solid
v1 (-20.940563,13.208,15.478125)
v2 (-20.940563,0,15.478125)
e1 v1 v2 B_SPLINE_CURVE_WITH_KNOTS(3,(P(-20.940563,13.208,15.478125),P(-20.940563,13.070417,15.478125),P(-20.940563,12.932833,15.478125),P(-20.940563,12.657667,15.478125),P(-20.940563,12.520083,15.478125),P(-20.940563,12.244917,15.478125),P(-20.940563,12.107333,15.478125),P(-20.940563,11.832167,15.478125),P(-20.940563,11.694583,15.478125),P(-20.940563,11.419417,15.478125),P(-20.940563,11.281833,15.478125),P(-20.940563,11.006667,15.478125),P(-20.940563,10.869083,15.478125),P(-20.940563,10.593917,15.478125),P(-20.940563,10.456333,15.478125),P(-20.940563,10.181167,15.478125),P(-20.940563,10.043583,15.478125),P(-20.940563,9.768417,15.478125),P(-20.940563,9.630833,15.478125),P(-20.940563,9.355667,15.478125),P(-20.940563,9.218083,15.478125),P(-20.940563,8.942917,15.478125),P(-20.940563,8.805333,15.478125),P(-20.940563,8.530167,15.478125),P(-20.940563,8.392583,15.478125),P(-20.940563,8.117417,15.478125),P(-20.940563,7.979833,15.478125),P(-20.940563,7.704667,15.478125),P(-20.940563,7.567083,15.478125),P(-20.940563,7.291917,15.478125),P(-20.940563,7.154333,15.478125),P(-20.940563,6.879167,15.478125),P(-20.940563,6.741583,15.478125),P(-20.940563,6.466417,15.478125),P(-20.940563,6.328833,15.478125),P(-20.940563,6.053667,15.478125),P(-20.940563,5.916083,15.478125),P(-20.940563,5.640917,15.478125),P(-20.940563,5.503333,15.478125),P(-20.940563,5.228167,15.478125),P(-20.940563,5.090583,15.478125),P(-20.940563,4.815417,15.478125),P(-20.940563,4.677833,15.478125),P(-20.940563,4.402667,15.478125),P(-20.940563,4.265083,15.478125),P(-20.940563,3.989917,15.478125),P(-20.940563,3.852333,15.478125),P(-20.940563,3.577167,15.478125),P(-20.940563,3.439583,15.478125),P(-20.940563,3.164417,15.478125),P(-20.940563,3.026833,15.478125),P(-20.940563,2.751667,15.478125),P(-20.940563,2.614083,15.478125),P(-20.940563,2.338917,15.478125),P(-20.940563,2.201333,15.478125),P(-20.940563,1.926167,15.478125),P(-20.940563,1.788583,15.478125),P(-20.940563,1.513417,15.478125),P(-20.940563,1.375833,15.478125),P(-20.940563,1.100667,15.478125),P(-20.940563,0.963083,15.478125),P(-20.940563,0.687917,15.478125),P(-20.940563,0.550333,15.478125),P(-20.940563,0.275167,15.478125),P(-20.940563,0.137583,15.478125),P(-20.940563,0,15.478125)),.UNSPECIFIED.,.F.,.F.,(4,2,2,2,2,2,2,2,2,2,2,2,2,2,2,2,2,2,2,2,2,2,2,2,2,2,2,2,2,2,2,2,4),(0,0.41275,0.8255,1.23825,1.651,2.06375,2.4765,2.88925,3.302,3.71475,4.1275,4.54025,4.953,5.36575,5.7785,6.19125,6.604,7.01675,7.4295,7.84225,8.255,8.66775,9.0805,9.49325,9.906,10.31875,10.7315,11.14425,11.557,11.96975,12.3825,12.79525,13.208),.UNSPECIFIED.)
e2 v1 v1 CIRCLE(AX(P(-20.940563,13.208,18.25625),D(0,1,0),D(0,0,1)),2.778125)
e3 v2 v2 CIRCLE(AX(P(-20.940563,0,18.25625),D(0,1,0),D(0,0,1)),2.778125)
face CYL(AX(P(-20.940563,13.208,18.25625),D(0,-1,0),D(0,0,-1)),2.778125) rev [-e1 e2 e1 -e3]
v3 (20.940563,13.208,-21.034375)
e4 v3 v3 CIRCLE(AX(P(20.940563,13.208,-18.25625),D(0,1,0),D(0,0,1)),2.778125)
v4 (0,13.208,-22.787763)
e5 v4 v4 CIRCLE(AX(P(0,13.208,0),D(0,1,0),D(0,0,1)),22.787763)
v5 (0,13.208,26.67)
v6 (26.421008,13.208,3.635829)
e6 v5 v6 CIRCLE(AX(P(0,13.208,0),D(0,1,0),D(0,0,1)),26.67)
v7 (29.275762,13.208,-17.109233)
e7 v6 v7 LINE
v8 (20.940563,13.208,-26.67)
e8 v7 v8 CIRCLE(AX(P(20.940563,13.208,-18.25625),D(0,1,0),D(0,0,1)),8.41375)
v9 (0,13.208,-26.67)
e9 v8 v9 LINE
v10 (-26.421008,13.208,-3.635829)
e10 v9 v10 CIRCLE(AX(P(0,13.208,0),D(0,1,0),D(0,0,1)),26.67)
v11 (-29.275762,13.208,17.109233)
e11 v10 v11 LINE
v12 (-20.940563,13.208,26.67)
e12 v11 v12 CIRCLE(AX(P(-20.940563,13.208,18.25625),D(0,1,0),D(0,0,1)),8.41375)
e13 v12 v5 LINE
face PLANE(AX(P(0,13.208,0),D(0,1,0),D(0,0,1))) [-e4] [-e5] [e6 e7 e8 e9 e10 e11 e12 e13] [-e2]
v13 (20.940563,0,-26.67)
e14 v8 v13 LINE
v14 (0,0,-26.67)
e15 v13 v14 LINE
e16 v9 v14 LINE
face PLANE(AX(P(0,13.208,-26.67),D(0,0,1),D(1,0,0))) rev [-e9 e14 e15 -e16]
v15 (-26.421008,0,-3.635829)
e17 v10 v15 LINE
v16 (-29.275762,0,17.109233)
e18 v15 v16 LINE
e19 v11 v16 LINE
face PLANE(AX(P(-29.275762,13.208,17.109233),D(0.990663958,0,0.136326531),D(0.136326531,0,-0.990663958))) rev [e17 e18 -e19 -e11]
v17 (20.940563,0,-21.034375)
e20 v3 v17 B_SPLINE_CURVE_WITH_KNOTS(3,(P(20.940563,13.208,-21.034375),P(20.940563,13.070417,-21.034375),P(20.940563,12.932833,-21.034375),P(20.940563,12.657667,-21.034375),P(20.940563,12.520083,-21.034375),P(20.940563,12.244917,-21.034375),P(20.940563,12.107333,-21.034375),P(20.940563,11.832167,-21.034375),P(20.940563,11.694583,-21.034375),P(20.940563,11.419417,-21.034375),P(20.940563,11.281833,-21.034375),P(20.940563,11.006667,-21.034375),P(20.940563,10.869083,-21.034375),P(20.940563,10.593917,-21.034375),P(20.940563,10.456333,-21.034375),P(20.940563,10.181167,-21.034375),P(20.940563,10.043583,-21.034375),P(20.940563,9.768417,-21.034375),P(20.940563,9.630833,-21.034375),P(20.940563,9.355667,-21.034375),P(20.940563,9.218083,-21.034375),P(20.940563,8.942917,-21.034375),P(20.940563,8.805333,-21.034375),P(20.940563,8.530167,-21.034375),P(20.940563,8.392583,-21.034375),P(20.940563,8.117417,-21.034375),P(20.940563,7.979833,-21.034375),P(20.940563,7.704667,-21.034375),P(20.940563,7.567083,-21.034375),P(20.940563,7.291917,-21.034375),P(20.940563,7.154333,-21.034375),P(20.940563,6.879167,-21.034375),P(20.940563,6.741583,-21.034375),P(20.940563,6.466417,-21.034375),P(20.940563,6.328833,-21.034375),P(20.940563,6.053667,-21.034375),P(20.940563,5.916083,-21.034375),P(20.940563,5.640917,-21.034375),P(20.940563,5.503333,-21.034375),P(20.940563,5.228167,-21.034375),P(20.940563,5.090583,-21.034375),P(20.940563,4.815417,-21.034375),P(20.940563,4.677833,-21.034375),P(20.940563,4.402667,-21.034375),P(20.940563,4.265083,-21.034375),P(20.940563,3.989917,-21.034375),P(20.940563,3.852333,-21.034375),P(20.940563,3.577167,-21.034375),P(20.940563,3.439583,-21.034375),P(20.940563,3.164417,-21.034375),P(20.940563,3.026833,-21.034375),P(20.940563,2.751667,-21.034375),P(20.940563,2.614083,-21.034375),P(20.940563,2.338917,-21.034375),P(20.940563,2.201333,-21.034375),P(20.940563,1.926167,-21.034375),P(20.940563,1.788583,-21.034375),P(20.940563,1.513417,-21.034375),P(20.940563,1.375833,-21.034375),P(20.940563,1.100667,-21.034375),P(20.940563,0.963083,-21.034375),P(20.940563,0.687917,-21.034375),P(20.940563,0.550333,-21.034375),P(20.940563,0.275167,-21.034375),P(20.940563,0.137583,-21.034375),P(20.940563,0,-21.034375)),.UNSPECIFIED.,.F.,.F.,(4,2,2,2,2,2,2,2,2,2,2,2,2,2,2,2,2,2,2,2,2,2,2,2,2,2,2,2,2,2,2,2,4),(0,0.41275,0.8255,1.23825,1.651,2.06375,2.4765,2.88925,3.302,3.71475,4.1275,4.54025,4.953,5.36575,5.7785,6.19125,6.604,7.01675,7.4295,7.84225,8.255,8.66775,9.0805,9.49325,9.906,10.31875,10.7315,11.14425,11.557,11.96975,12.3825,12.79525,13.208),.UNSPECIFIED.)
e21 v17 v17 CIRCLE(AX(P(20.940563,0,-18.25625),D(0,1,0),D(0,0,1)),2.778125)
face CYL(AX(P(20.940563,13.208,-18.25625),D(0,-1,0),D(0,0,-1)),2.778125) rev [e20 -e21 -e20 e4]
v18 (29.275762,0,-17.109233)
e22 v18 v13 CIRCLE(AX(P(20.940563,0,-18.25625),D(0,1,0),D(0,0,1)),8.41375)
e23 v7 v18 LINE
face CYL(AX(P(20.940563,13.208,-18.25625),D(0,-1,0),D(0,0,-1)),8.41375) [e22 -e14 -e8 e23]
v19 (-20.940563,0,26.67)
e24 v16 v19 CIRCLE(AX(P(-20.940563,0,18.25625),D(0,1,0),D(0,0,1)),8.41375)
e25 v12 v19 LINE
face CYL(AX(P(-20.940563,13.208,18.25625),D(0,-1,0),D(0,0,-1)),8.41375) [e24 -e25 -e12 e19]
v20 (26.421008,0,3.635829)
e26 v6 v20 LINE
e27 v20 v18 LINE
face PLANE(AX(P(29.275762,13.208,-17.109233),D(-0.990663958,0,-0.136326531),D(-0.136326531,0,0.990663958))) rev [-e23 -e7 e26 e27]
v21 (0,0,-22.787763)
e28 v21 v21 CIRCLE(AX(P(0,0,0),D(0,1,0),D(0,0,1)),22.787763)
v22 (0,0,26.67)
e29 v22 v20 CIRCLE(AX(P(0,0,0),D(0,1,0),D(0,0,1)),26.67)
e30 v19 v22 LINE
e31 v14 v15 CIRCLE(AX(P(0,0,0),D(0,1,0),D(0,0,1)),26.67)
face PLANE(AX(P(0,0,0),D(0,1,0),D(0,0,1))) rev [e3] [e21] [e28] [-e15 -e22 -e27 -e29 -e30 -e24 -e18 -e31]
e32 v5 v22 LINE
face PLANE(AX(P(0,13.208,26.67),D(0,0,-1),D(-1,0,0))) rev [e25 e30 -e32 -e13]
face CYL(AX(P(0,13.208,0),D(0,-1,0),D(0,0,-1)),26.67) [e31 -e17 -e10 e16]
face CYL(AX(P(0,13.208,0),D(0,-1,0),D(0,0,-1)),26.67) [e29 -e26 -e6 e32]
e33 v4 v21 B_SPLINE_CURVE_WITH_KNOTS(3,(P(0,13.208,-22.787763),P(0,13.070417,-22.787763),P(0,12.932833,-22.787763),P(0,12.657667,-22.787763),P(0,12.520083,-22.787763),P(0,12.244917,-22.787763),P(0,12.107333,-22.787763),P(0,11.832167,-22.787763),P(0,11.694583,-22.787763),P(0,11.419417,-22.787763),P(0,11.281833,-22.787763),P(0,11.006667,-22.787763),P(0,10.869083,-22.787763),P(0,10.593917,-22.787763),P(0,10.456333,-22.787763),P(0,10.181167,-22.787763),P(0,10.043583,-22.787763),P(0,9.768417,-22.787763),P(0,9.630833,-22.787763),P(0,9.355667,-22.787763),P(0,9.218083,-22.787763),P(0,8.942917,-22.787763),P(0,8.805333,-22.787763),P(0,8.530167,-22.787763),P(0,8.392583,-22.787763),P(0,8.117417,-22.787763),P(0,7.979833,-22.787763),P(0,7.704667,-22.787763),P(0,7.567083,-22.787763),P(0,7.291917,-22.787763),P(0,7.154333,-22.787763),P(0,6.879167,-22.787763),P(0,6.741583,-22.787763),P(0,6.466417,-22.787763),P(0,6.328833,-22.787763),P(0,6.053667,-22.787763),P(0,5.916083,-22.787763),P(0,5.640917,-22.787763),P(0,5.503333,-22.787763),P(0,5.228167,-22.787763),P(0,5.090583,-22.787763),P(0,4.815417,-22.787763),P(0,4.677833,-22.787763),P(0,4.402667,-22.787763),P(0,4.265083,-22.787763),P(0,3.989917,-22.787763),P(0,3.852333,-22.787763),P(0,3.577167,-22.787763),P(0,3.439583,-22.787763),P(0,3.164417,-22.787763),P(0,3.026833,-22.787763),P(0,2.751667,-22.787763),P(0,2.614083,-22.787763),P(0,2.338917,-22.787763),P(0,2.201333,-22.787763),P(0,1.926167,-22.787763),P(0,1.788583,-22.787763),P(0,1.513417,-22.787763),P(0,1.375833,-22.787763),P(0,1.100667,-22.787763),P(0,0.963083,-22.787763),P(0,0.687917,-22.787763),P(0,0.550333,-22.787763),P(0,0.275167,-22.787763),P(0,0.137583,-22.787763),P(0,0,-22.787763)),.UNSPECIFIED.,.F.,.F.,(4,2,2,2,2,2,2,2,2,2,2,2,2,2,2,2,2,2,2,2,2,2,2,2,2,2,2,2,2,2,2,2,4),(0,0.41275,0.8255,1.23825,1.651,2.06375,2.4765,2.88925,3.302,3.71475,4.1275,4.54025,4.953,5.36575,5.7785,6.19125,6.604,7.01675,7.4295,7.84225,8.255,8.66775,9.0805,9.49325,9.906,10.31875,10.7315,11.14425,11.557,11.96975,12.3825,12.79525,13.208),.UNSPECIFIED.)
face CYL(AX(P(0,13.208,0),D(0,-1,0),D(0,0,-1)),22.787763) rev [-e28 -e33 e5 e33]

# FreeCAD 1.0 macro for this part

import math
import FreeCAD as App
import Part
import Sketcher

V = App.Vector
Q = App.Units.Quantity

doc = App.newDocument("Part")
params = doc.addObject("Spreadsheet::Sheet", "Params")
for row, (alias, value) in enumerate([
    ("sketch1_radius", "1.05 in"),
    ("sketch1_diameter", "0.21875 in"),
    ("pad1_length", "0.52 in"),
], start=1):
    params.set(f"A{row}", alias)
    params.set(f"B{row}", "=" + value)
    params.setAlias(f"B{row}", alias)

body = doc.addObject("PartDesign::Body", "Body")

sketch1 = body.newObject("Sketcher::SketchObject", "Sketch")
sketch1.AttachmentSupport = (doc.getObject("XZ_Plane"), [""])
sketch1.MapMode = "FlatFace"
sketch1.addGeometry([
    Part.LineSegment(V(-26.4, -3.6, 0), V(-29.3, 17.1, 0)),
    Part.ArcOfCircle(Part.Circle(V(-20.9, 18.3, 0), V(0, 0, 1), 8.4), math.radians(90), math.radians(188)),
    Part.LineSegment(V(-20.9, 26.7, 0), V(0, 26.7, 0)),
    Part.ArcOfCircle(Part.Circle(V(0, 0, 0), V(0, 0, 1), 26.7), math.radians(8), math.radians(90)),
    Part.LineSegment(V(26.4, 3.6, 0), V(29.3, -17.1, 0)),
    Part.ArcOfCircle(Part.Circle(V(20.9, -18.3, 0), V(0, 0, 1), 8.4), math.radians(-90), math.radians(8)),
    Part.LineSegment(V(20.9, -26.7, 0), V(0, -26.7, 0)),
    Part.ArcOfCircle(Part.Circle(V(0, 0, 0), V(0, 0, 1), 26.7), math.radians(-172), math.radians(-90)),
    Part.Circle(V(-20.9, 18.3, 0), V(0, 0, 1), 2.8),
    Part.Circle(V(0, 0, 0), V(0, 0, 1), 22.8),
    Part.Circle(V(20.9, -18.3, 0), V(0, 0, 1), 2.8),
], False)
sketch1.addConstraint([
    Sketcher.Constraint("Tangent", 0, 2, 1, 2),
    Sketcher.Constraint("Tangent", 1, 1, 2, 1),
    Sketcher.Constraint("Tangent", 2, 2, 3, 2),
    Sketcher.Constraint("Tangent", 3, 1, 4, 1),
    Sketcher.Constraint("Tangent", 4, 2, 5, 2),
    Sketcher.Constraint("Tangent", 5, 1, 6, 1),
    Sketcher.Constraint("Tangent", 6, 2, 7, 2),
    Sketcher.Constraint("Tangent", 7, 1, 0, 1),
    Sketcher.Constraint("Horizontal", 2),
    Sketcher.Constraint("Horizontal", 6),
    Sketcher.Constraint("Coincident", 3, 3, -1, 1),
    Sketcher.Constraint("Coincident", 7, 3, -1, 1),
    Sketcher.Constraint("Coincident", 9, 3, -1, 1),
    Sketcher.Constraint("Coincident", 8, 3, 1, 3),
    Sketcher.Constraint("Coincident", 10, 3, 5, 3),
    Sketcher.Constraint("Equal", 1, 5),
    Sketcher.Constraint("Equal", 3, 7),
    Sketcher.Constraint("Equal", 8, 10),
    Sketcher.Constraint("Parallel", 0, 4),
    Sketcher.Constraint("Radius", 3, Q("1.05 in")),
    Sketcher.Constraint("Diameter", 8, Q("0.21875 in")),
    Sketcher.Constraint("DistanceY", -1, 1, 1, 3, Q("0.71875 in")),
    Sketcher.Constraint("Diameter", 9, Q("45.575525 mm")),
    Sketcher.Constraint("DistanceX", 0, 2, 8, 3, Q("8.335199 mm")),
])
sketch1.setExpression("Constraints[19]", "Params.sketch1_radius")
sketch1.setExpression("Constraints[20]", "Params.sketch1_diameter")
pad1 = body.newObject("PartDesign::Pad", "Pad")
pad1.Profile = sketch1
pad1.setExpression("Length", "Params.pad1_length")
pad1.Reversed = True

doc.recompute()
